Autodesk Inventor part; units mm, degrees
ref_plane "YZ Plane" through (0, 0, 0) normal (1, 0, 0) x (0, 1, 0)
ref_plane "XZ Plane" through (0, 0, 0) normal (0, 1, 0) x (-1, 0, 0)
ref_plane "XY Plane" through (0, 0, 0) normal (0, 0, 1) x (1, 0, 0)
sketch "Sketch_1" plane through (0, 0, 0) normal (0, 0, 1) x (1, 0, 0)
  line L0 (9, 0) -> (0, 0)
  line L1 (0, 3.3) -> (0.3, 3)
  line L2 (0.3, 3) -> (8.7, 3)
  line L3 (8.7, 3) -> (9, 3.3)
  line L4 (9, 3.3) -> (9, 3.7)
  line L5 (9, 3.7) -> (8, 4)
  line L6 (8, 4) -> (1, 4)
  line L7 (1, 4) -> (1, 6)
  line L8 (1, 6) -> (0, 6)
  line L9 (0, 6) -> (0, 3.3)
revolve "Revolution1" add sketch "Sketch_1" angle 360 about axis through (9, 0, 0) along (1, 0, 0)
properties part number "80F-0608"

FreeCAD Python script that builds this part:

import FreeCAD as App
import Part
import Sketcher

V = App.Vector
Q = App.Units.Quantity

doc = App.newDocument("Part")
params = doc.addObject("Spreadsheet::Sheet", "Params")
for row, (alias, value) in enumerate([
    ("sketch1_width", "7 mm"),
    ("sketch1_width2", "1 mm"),
    ("sketch1_height", "2 mm"),
    ("sketch1_width3", "8.4 mm"),
    ("sketch1_height2", "2.7 mm"),
    ("revolution_angle", "360 deg"),
], start=1):
    params.set(f"A{row}", alias)
    params.set(f"B{row}", "=" + value)
    params.setAlias(f"B{row}", alias)

body = doc.addObject("PartDesign::Body", "Body")

sketch1 = body.newObject("Sketcher::SketchObject", "Sketch")
sketch1.AttachmentSupport = (doc.getObject("XY_Plane"), [""])
sketch1.MapMode = "FlatFace"
sketch1.addGeometry(Part.LineSegment(V(0, 6, 0), V(0, 3.3, 0)), False)
sketch1.addGeometry(Part.LineSegment(V(0, 3.3, 0), V(0.3, 3, 0)), False)
sketch1.addGeometry(Part.LineSegment(V(0.3, 3, 0), V(8.7, 3, 0)), False)
sketch1.addGeometry(Part.LineSegment(V(8.7, 3, 0), V(9, 3.3, 0)), False)
sketch1.addGeometry(Part.LineSegment(V(9, 3.3, 0), V(9, 3.7, 0)), False)
sketch1.addGeometry(Part.LineSegment(V(9, 3.7, 0), V(8, 4, 0)), False)
sketch1.addGeometry(Part.LineSegment(V(8, 4, 0), V(1, 4, 0)), False)
sketch1.addGeometry(Part.LineSegment(V(1, 4, 0), V(1, 6, 0)), False)
sketch1.addGeometry(Part.LineSegment(V(1, 6, 0), V(0, 6, 0)), False)
sketch1.addConstraint(Sketcher.Constraint("Coincident", 0, 2, 1, 1))
sketch1.addConstraint(Sketcher.Constraint("Coincident", 1, 2, 2, 1))
sketch1.addConstraint(Sketcher.Constraint("Coincident", 2, 2, 3, 1))
sketch1.addConstraint(Sketcher.Constraint("Coincident", 3, 2, 4, 1))
sketch1.addConstraint(Sketcher.Constraint("Coincident", 4, 2, 5, 1))
sketch1.addConstraint(Sketcher.Constraint("Coincident", 5, 2, 6, 1))
sketch1.addConstraint(Sketcher.Constraint("Coincident", 6, 2, 7, 1))
sketch1.addConstraint(Sketcher.Constraint("Coincident", 7, 2, 8, 1))
sketch1.addConstraint(Sketcher.Constraint("Coincident", 8, 2, 0, 1))
sketch1.addConstraint(Sketcher.Constraint("Vertical", 0))
sketch1.addConstraint(Sketcher.Constraint("Horizontal", 2))
sketch1.addConstraint(Sketcher.Constraint("Vertical", 4))
sketch1.addConstraint(Sketcher.Constraint("Horizontal", 6))
sketch1.addConstraint(Sketcher.Constraint("Vertical", 7))
sketch1.addConstraint(Sketcher.Constraint("Horizontal", 8))
sketch1.addConstraint(Sketcher.Constraint("PointOnObject", 0, 2, -2))
sketch1.addConstraint(Sketcher.Constraint("Perpendicular", 1, 3))
sketch1.addConstraint(Sketcher.Constraint("Horizontal", 0, 2, 3, 2))
sketch1.addConstraint(Sketcher.Constraint("Equal", 1, 3))
sketch1.addConstraint(Sketcher.Constraint("DistanceX", 6, 2, 6, 1, Q("7 mm")))
sketch1.addConstraint(Sketcher.Constraint("DistanceX", 8, 2, 8, 1, Q("1 mm")))
sketch1.addConstraint(Sketcher.Constraint("DistanceY", 7, 1, 7, 2, Q("2 mm")))
sketch1.addConstraint(Sketcher.Constraint("DistanceX", 2, 1, 2, 2, Q("8.4 mm")))
sketch1.addConstraint(Sketcher.Constraint("DistanceY", 0, 2, 0, 1, Q("2.7 mm")))
sketch1.addConstraint(Sketcher.Constraint("DistanceY", 4, 1, 4, 2, Q("0.4 mm")))
sketch1.addConstraint(Sketcher.Constraint("DistanceY", -1, 1, 1, 2, Q("3 mm")))
sketch1.addConstraint(Sketcher.Constraint("DistanceX", -1, 1, 3, 2, Q("9 mm")))
sketch1.setExpression("Constraints[19]", "Params.sketch1_width")
sketch1.setExpression("Constraints[20]", "Params.sketch1_width2")
sketch1.setExpression("Constraints[21]", "Params.sketch1_height")
sketch1.setExpression("Constraints[22]", "Params.sketch1_width3")
sketch1.setExpression("Constraints[23]", "Params.sketch1_height2")
revolution = body.newObject("PartDesign::Revolution", "Revolution")
revolution.Profile = sketch1
revolution.ReferenceAxis = (sketch1, ["H_Axis"])
revolution.setExpression("Angle", "Params.revolution_angle")

doc.recompute()
